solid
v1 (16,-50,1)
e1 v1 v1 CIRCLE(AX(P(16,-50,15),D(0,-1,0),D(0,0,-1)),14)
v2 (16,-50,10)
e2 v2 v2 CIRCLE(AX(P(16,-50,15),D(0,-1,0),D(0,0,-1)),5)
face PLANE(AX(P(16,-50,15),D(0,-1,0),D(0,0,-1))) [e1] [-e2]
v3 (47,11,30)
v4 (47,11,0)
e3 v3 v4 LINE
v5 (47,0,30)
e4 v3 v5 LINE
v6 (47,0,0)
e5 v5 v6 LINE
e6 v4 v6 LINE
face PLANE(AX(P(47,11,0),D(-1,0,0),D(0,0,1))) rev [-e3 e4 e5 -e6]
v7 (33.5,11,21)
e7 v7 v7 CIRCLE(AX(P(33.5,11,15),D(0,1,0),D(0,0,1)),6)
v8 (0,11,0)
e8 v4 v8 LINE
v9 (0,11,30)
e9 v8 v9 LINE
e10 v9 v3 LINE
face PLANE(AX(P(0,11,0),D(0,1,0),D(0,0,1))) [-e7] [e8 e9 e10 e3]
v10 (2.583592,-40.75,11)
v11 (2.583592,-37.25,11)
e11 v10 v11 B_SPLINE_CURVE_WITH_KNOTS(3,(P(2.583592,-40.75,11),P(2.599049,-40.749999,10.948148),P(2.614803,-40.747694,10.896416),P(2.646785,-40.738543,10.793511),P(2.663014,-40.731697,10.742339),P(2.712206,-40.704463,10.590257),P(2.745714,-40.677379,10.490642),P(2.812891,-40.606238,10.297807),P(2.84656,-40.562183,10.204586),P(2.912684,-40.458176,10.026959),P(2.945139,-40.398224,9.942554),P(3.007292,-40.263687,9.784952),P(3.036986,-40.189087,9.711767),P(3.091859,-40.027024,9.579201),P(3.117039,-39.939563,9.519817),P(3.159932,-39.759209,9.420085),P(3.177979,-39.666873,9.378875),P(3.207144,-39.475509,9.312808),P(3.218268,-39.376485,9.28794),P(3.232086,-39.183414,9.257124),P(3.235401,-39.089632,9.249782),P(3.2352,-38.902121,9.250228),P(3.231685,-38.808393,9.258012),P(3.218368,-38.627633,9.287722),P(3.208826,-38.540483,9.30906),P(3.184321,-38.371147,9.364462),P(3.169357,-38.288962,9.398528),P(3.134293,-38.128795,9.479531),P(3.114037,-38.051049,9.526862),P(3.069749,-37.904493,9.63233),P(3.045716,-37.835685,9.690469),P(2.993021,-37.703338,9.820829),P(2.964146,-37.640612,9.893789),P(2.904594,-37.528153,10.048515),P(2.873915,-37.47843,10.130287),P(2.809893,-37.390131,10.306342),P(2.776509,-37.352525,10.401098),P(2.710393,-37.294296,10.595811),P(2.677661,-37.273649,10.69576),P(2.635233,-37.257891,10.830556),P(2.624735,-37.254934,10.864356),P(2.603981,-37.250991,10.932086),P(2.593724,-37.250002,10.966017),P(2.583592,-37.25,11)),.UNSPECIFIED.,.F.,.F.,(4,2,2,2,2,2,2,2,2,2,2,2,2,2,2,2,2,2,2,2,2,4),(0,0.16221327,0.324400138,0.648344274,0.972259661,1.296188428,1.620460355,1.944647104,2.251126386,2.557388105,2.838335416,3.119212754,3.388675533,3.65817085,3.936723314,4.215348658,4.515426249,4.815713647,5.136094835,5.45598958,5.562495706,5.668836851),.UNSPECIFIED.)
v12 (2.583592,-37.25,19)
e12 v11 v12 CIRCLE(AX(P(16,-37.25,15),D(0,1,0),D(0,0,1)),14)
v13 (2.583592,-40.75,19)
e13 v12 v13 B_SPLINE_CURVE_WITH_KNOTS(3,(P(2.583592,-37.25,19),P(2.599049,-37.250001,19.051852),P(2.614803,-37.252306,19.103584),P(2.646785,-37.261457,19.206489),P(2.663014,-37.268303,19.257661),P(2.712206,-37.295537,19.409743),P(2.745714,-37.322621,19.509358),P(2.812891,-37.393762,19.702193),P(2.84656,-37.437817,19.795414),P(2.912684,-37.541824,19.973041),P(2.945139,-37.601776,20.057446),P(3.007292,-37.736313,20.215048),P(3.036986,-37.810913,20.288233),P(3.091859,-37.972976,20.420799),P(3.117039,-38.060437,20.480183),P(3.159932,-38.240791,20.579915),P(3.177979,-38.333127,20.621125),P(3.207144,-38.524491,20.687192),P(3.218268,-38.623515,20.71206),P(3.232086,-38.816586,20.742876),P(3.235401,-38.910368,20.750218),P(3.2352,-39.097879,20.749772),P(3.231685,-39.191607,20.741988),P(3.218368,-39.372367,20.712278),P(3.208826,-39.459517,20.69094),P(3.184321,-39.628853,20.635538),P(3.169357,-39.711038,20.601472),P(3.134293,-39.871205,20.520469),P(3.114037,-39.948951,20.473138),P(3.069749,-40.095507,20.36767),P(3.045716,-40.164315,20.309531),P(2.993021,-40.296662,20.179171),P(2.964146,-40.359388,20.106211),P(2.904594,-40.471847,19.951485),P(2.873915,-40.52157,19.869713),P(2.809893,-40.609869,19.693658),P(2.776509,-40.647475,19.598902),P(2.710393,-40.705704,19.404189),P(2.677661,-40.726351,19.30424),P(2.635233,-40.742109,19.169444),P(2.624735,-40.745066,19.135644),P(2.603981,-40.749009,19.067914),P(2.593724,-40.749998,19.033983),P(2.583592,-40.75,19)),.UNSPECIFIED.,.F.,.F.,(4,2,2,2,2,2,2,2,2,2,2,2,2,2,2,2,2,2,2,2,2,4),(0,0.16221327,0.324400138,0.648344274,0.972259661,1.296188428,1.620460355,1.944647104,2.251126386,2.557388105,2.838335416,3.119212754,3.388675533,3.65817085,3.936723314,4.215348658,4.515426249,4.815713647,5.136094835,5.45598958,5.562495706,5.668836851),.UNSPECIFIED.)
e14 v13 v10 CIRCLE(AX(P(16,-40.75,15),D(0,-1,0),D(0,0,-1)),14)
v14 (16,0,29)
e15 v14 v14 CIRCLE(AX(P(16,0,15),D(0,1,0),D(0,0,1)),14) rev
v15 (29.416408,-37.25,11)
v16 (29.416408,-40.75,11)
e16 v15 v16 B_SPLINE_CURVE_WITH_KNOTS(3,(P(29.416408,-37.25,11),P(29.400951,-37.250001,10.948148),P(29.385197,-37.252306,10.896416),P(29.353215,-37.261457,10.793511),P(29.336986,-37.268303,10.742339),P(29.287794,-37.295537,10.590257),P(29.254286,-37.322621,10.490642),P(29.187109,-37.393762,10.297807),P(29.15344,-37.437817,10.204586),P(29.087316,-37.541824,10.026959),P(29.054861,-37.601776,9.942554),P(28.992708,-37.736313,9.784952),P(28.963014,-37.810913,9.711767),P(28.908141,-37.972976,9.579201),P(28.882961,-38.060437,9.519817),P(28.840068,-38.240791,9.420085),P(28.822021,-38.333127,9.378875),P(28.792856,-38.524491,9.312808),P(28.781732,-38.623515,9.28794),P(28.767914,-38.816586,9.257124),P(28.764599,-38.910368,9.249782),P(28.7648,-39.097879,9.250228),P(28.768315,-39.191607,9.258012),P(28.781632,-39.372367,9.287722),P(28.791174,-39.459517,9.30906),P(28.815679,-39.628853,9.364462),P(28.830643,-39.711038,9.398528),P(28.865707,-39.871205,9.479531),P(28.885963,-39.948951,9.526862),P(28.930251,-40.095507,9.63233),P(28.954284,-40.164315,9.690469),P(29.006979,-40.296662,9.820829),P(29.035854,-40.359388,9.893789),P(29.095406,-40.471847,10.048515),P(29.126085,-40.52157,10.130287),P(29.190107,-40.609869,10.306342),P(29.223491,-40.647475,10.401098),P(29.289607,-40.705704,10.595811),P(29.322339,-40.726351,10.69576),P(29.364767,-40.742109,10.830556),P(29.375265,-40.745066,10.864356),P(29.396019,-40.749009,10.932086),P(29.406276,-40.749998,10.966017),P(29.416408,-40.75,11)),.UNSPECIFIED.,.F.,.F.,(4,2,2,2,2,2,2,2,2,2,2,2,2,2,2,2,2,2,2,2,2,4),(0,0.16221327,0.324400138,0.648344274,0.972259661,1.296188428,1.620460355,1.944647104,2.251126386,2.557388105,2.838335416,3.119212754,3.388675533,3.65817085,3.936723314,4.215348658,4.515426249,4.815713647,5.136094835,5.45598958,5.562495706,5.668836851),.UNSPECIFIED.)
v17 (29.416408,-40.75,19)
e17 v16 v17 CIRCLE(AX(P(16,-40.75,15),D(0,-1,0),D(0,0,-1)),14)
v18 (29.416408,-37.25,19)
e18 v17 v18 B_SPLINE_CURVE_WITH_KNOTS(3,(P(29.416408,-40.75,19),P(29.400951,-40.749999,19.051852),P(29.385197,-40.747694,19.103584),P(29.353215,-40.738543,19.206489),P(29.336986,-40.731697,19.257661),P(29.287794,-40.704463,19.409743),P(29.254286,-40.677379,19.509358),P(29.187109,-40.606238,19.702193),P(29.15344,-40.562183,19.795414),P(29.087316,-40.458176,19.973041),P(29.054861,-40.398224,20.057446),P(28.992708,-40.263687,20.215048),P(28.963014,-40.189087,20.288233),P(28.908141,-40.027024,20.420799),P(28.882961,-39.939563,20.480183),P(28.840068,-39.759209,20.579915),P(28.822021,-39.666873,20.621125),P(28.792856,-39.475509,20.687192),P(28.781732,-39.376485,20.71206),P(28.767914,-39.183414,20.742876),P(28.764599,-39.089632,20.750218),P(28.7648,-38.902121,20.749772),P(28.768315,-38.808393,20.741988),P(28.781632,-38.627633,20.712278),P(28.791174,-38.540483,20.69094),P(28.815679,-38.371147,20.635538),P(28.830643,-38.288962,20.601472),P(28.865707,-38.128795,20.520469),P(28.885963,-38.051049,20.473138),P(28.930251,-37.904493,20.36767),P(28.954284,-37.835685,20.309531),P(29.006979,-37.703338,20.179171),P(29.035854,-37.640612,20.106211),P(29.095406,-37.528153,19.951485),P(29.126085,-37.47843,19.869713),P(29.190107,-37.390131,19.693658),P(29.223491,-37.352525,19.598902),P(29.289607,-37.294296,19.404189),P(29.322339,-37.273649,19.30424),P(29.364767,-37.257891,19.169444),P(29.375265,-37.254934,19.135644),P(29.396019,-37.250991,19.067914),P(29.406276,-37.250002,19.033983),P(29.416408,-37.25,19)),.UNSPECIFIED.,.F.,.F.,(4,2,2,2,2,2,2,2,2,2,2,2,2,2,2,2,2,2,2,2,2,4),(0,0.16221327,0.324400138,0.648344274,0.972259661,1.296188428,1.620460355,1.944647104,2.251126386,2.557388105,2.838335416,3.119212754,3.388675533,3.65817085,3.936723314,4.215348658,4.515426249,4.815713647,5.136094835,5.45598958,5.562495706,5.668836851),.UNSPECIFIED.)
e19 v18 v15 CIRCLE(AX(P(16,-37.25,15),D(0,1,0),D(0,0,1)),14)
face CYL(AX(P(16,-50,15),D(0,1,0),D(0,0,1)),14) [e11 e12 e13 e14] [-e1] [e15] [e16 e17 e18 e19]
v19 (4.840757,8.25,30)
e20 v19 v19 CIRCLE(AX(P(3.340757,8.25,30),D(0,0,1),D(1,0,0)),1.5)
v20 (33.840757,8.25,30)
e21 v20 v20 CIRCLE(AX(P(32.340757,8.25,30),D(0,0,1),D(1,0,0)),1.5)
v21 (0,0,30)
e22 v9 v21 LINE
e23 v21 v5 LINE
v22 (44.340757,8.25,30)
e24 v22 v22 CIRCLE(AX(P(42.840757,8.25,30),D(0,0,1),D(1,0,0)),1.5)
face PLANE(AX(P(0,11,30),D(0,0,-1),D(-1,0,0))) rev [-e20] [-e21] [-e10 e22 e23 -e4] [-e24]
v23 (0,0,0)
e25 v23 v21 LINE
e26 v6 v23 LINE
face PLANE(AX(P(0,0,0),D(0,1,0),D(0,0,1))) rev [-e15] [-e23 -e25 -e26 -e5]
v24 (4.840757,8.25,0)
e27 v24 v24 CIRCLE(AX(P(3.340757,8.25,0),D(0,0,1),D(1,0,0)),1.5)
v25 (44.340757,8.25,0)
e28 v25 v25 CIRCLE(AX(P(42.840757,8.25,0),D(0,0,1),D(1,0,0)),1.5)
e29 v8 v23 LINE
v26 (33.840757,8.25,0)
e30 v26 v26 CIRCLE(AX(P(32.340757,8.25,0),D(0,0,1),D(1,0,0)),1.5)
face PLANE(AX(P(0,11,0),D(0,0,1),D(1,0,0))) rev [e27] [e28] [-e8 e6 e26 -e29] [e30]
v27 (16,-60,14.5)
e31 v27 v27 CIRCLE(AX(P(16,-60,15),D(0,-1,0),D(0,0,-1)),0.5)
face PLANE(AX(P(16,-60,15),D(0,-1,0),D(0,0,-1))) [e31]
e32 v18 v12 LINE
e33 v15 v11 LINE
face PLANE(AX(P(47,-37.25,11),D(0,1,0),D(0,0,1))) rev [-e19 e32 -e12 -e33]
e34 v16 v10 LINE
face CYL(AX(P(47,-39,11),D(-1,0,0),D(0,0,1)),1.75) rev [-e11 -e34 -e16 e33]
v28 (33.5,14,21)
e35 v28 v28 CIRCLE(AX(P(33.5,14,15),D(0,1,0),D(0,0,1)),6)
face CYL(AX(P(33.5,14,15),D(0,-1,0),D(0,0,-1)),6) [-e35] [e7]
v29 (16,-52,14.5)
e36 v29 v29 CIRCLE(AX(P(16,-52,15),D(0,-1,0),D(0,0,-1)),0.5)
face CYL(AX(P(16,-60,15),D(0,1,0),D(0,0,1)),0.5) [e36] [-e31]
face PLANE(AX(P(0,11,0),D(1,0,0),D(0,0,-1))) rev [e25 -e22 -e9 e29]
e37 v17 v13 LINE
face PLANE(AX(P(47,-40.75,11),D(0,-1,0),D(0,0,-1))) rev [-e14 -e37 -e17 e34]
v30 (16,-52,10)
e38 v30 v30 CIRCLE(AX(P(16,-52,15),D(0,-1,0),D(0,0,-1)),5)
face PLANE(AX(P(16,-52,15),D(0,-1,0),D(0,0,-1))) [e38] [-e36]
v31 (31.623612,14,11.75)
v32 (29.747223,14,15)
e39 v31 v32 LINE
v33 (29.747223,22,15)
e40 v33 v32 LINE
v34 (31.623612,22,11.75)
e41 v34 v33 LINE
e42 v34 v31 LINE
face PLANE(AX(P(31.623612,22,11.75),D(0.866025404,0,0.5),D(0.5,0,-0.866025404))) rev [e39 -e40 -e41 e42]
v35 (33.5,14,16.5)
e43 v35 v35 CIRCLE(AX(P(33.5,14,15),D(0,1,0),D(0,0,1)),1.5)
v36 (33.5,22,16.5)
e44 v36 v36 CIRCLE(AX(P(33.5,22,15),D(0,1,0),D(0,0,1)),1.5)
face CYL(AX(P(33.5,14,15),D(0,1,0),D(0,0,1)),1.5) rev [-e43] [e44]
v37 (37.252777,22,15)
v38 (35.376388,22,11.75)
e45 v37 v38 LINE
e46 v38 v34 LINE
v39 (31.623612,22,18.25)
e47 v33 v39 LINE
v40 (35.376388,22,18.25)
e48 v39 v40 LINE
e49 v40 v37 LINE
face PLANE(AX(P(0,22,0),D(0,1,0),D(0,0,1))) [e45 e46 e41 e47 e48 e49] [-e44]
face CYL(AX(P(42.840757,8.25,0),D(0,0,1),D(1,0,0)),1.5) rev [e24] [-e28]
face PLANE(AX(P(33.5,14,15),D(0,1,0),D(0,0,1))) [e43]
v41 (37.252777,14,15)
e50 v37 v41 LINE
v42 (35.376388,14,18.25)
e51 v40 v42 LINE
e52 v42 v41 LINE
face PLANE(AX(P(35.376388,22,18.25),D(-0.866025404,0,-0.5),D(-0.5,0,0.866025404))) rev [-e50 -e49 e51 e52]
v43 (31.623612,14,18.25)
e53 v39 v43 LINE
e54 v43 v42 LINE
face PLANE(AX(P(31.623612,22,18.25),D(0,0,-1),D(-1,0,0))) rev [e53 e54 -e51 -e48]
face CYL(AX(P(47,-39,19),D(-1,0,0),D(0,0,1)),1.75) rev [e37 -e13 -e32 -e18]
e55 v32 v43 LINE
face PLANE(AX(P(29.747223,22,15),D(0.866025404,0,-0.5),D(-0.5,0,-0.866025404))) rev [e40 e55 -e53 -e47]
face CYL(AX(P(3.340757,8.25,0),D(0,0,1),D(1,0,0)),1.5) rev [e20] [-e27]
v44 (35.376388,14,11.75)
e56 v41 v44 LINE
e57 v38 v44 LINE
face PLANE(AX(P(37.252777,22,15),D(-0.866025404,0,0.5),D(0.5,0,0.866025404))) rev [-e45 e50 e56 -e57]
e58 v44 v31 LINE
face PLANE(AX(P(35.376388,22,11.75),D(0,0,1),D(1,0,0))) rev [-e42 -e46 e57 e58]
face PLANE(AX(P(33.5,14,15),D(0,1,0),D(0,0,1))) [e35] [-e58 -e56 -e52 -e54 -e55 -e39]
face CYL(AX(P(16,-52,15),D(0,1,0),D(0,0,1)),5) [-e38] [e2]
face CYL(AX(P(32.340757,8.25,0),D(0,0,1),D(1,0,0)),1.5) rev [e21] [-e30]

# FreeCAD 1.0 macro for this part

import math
import FreeCAD as App
import Part
import Sketcher
Q = App.Units.Quantity

doc = App.newDocument("Part")
body = doc.addObject("PartDesign::Body", "Body")

# Sketch on XZ plane
sketch1 = body.newObject("Sketcher::SketchObject", "Sketch")
sketch1.AttachmentSupport = (doc.getObject("XZ_Plane"), [""])
sketch1.MapMode = "FlatFace"
sketch1.addGeometry(Part.LineSegment(App.Vector(0, 0, 0), App.Vector(0, 30, 0)), False)
sketch1.addGeometry(Part.LineSegment(App.Vector(0, 30, 0), App.Vector(47, 30, 0)), False)
sketch1.addGeometry(Part.LineSegment(App.Vector(47, 30, 0), App.Vector(47, 0, 0)), False)
sketch1.addGeometry(Part.LineSegment(App.Vector(47, 0, 0), App.Vector(0, 0, 0)), False)
sketch1.addConstraint(Sketcher.Constraint("Coincident", 0, 2, 1, 1))
sketch1.addConstraint(Sketcher.Constraint("Coincident", 1, 2, 2, 1))
sketch1.addConstraint(Sketcher.Constraint("Coincident", 2, 2, 3, 1))
sketch1.addConstraint(Sketcher.Constraint("Coincident", 3, 2, 0, 1))
sketch1.addConstraint(Sketcher.Constraint("Vertical", 0))
sketch1.addConstraint(Sketcher.Constraint("Horizontal", 1))
sketch1.addConstraint(Sketcher.Constraint("Vertical", 2))
sketch1.addConstraint(Sketcher.Constraint("Horizontal", 3))
sketch1.addConstraint(Sketcher.Constraint("Coincident", 3, 2, -1, 1))
sketch1.addConstraint(Sketcher.Constraint("DistanceX", 1, 1, 1, 2, 47.0))
sketch1.addConstraint(Sketcher.Constraint("DistanceY", 0, 1, 0, 2, 30.0))
pad1 = body.newObject("PartDesign::Pad", "Pad")
pad1.Profile = sketch1
pad1.Length = 11
pad1.Reversed = True

# Sketch on XZ plane
sketch2 = body.newObject("Sketcher::SketchObject", "Sketch001")
sketch2.AttachmentSupport = (doc.getObject("XZ_Plane"), [""])
sketch2.MapMode = "FlatFace"
sketch2.AttachmentOffset = App.Placement(App.Vector(0, 0, -11), App.Rotation())
sketch2.addGeometry(Part.Circle(App.Vector(33.5, 15, 0), App.Vector(0, 0, 1), 6), False)
sketch2.addConstraint(Sketcher.Constraint("Diameter", 0, 12.0))
sketch2.addConstraint(Sketcher.Constraint("DistanceY", -1, 1, 0, 3, 15.0))
sketch2.addConstraint(Sketcher.Constraint("DistanceX", -1, 1, 0, 3, 33.5))
pad2 = body.newObject("PartDesign::Pad", "Pad001")
pad2.Profile = sketch2
pad2.Length = 3
pad2.Reversed = True

# Sketch on XZ plane
sketch3 = body.newObject("Sketcher::SketchObject", "Sketch002")
sketch3.AttachmentSupport = (doc.getObject("XZ_Plane"), [""])
sketch3.MapMode = "FlatFace"
sketch3.AttachmentOffset = App.Placement(App.Vector(0, 0, -14), App.Rotation())
sketch3.addGeometry(Part.LineSegment(App.Vector(37.252777, 15, 0), App.Vector(35.376388, 11.75, 0)), False)
sketch3.addGeometry(Part.LineSegment(App.Vector(35.376388, 11.75, 0), App.Vector(31.623612, 11.75, 0)), False)
sketch3.addGeometry(Part.LineSegment(App.Vector(31.623612, 11.75, 0), App.Vector(29.747223, 15, 0)), False)
sketch3.addGeometry(Part.LineSegment(App.Vector(29.747223, 15, 0), App.Vector(31.623612, 18.25, 0)), False)
sketch3.addGeometry(Part.LineSegment(App.Vector(31.623612, 18.25, 0), App.Vector(35.376388, 18.25, 0)), False)
sketch3.addGeometry(Part.LineSegment(App.Vector(35.376388, 18.25, 0), App.Vector(37.252777, 15, 0)), False)
sketch3.addConstraint(Sketcher.Constraint("Coincident", 0, 2, 1, 1))
sketch3.addConstraint(Sketcher.Constraint("Coincident", 1, 2, 2, 1))
sketch3.addConstraint(Sketcher.Constraint("Coincident", 2, 2, 3, 1))
sketch3.addConstraint(Sketcher.Constraint("Coincident", 3, 2, 4, 1))
sketch3.addConstraint(Sketcher.Constraint("Coincident", 4, 2, 5, 1))
sketch3.addConstraint(Sketcher.Constraint("Coincident", 5, 2, 0, 1))
sketch3.addConstraint(Sketcher.Constraint("Horizontal", 1))
sketch3.addConstraint(Sketcher.Constraint("Horizontal", 4))
sketch3.addConstraint(Sketcher.Constraint("Parallel", 0, 3))
sketch3.addConstraint(Sketcher.Constraint("Parallel", 2, 5))
sketch3.addConstraint(Sketcher.Constraint("Horizontal", 2, 2, 5, 2))
sketch3.addConstraint(Sketcher.Constraint("Vertical", 1, 2, 3, 2))
sketch3.addConstraint(Sketcher.Constraint("Vertical", 0, 2, 4, 2))
sketch3.addConstraint(Sketcher.Constraint("Angle", 0, Q("-120 deg")))
sketch3.addConstraint(Sketcher.Constraint("DistanceY", -1, 1, 2, 2, 15.0))
sketch3.addConstraint(Sketcher.Constraint("DistanceY", 1, 2, 3, 2, 6.5))
sketch3.addConstraint(Sketcher.Constraint("DistanceX", 1, 2, 1, 1, 3.752777))
sketch3.addConstraint(Sketcher.Constraint("DistanceX", -1, 1, 0, 2, 35.376388))
pad3 = body.newObject("PartDesign::Pad", "Pad002")
pad3.Profile = sketch3
pad3.Length = 8
pad3.Reversed = True

# Sketch on XZ plane
sketch4 = body.newObject("Sketcher::SketchObject", "Sketch003")
sketch4.AttachmentSupport = (doc.getObject("XZ_Plane"), [""])
sketch4.MapMode = "FlatFace"
sketch4.addGeometry(Part.Circle(App.Vector(16, 15, 0), App.Vector(0, 0, 1), 14), False)
sketch4.addConstraint(Sketcher.Constraint("Diameter", 0, 28.0))
sketch4.addConstraint(Sketcher.Constraint("DistanceX", -1, 1, 0, 3, 16.0))
sketch4.addConstraint(Sketcher.Constraint("DistanceY", -1, 1, 0, 3, 15.0))
pad4 = body.newObject("PartDesign::Pad", "Pad003")
pad4.Profile = sketch4
pad4.Length = 50

# Sketch on XZ plane
sketch5 = body.newObject("Sketcher::SketchObject", "Sketch004")
sketch5.AttachmentSupport = (doc.getObject("XZ_Plane"), [""])
sketch5.MapMode = "FlatFace"
sketch5.AttachmentOffset = App.Placement(App.Vector(0, 0, 50), App.Rotation())
sketch5.addGeometry(Part.Circle(App.Vector(16, 15, 0), App.Vector(0, 0, 1), 5), False)
sketch5.addConstraint(Sketcher.Constraint("Diameter", 0, 10.0))
sketch5.addConstraint(Sketcher.Constraint("DistanceX", -1, 1, 0, 3, 16.0))
sketch5.addConstraint(Sketcher.Constraint("DistanceY", -1, 1, 0, 3, 15.0))
pad5 = body.newObject("PartDesign::Pad", "Pad004")
pad5.Profile = sketch5
pad5.Length = 2

# Sketch on XY plane
sketch6 = body.newObject("Sketcher::SketchObject", "Sketch005")
sketch6.AttachmentSupport = (doc.getObject("XY_Plane"), [""])
sketch6.MapMode = "FlatFace"
sketch6.AttachmentOffset = App.Placement(App.Vector(0, 0, 30), App.Rotation())
sketch6.addGeometry(Part.Circle(App.Vector(3.340757, 8.25, 0), App.Vector(0, 0, 1), 1.5), False)
sketch6.addGeometry(Part.Circle(App.Vector(32.340757, 8.25, 0), App.Vector(0, 0, 1), 1.5), False)
sketch6.addGeometry(Part.Circle(App.Vector(42.840757, 8.25, 0), App.Vector(0, 0, 1), 1.5), False)
sketch6.addConstraint(Sketcher.Constraint("Equal", 0, 1))
sketch6.addConstraint(Sketcher.Constraint("Equal", 1, 2))
sketch6.addConstraint(Sketcher.Constraint("Horizontal", 0, 3, 1, 3))
sketch6.addConstraint(Sketcher.Constraint("Horizontal", 1, 3, 2, 3))
sketch6.addConstraint(Sketcher.Constraint("Diameter", 0, 3.0))
sketch6.addConstraint(Sketcher.Constraint("DistanceX", 0, 3, 1, 3, 29.0))
sketch6.addConstraint(Sketcher.Constraint("DistanceX", 1, 3, 2, 3, 10.5))
sketch6.addConstraint(Sketcher.Constraint("DistanceY", -1, 1, 0, 3, 8.25))
sketch6.addConstraint(Sketcher.Constraint("DistanceX", -1, 1, 0, 3, 3.340757))
pocket1 = body.newObject("PartDesign::Pocket", "Pocket")
pocket1.Profile = sketch6
pocket1.Type = "ThroughAll"

# Sketch on YZ plane
sketch7 = body.newObject("Sketcher::SketchObject", "Sketch006")
sketch7.AttachmentSupport = (doc.getObject("YZ_Plane"), [""])
sketch7.MapMode = "FlatFace"
sketch7.addGeometry(Part.LineSegment(App.Vector(-37.25, 19, 0), App.Vector(-37.25, 11, 0)), False)
sketch7.addGeometry(Part.ArcOfCircle(Part.Circle(App.Vector(-39, 11, 0), App.Vector(0, 0, 1), 1.75), math.radians(180), math.radians(360)), False)
sketch7.addGeometry(Part.LineSegment(App.Vector(-40.75, 11, 0), App.Vector(-40.75, 19, 0)), False)
sketch7.addGeometry(Part.ArcOfCircle(Part.Circle(App.Vector(-39, 19, 0), App.Vector(0, 0, 1), 1.75), math.radians(0), math.radians(180)), False)
sketch7.addConstraint(Sketcher.Constraint("Tangent", 0, 2, 1, 2))
sketch7.addConstraint(Sketcher.Constraint("Tangent", 1, 1, 2, 1))
sketch7.addConstraint(Sketcher.Constraint("Tangent", 2, 2, 3, 2))
sketch7.addConstraint(Sketcher.Constraint("Tangent", 3, 1, 0, 1))
sketch7.addConstraint(Sketcher.Constraint("Vertical", 0))
sketch7.addConstraint(Sketcher.Constraint("Vertical", 2))
sketch7.addConstraint(Sketcher.Constraint("DistanceY", 0, 2, 0, 1, 8.0))
sketch7.addConstraint(Sketcher.Constraint("Radius", 1, 1.75))
sketch7.addConstraint(Sketcher.Constraint("DistanceX", 1, 3, -1, 1, 39.0))
sketch7.addConstraint(Sketcher.Constraint("DistanceY", -1, 1, 1, 3, 11.0))
pocket2 = body.newObject("PartDesign::Pocket", "Pocket001")
pocket2.Profile = sketch7
pocket2.Type = "ThroughAll"
pocket2.Reversed = True

# Sketch on XZ plane
sketch8 = body.newObject("Sketcher::SketchObject", "Sketch007")
sketch8.AttachmentSupport = (doc.getObject("XZ_Plane"), [""])
sketch8.MapMode = "FlatFace"
sketch8.AttachmentOffset = App.Placement(App.Vector(0, 0, -22), App.Rotation())
sketch8.addGeometry(Part.Circle(App.Vector(33.5, 15, 0), App.Vector(0, 0, 1), 1.5), False)
sketch8.addConstraint(Sketcher.Constraint("Diameter", 0, 3.0))
sketch8.addConstraint(Sketcher.Constraint("DistanceY", -1, 1, 0, 3, 15.0))
sketch8.addConstraint(Sketcher.Constraint("DistanceX", -1, 1, 0, 3, 33.5))
pocket3 = body.newObject("PartDesign::Pocket", "Pocket002")
pocket3.Profile = sketch8
pocket3.Length = 8
pocket3.Reversed = True

# Sketch on XZ plane
sketch9 = body.newObject("Sketcher::SketchObject", "Sketch008")
sketch9.AttachmentSupport = (doc.getObject("XZ_Plane"), [""])
sketch9.MapMode = "FlatFace"
sketch9.AttachmentOffset = App.Placement(App.Vector(0, 0, 52), App.Rotation())
sketch9.addGeometry(Part.Circle(App.Vector(16, 15, 0), App.Vector(0, 0, 1), 0.5), False)
sketch9.addConstraint(Sketcher.Constraint("Diameter", 0, 1.0))
sketch9.addConstraint(Sketcher.Constraint("DistanceX", -1, 1, 0, 3, 16.0))
sketch9.addConstraint(Sketcher.Constraint("DistanceY", -1, 1, 0, 3, 15.0))
pad6 = body.newObject("PartDesign::Pad", "Pad005")
pad6.Profile = sketch9
pad6.Length = 8

doc.recompute()
